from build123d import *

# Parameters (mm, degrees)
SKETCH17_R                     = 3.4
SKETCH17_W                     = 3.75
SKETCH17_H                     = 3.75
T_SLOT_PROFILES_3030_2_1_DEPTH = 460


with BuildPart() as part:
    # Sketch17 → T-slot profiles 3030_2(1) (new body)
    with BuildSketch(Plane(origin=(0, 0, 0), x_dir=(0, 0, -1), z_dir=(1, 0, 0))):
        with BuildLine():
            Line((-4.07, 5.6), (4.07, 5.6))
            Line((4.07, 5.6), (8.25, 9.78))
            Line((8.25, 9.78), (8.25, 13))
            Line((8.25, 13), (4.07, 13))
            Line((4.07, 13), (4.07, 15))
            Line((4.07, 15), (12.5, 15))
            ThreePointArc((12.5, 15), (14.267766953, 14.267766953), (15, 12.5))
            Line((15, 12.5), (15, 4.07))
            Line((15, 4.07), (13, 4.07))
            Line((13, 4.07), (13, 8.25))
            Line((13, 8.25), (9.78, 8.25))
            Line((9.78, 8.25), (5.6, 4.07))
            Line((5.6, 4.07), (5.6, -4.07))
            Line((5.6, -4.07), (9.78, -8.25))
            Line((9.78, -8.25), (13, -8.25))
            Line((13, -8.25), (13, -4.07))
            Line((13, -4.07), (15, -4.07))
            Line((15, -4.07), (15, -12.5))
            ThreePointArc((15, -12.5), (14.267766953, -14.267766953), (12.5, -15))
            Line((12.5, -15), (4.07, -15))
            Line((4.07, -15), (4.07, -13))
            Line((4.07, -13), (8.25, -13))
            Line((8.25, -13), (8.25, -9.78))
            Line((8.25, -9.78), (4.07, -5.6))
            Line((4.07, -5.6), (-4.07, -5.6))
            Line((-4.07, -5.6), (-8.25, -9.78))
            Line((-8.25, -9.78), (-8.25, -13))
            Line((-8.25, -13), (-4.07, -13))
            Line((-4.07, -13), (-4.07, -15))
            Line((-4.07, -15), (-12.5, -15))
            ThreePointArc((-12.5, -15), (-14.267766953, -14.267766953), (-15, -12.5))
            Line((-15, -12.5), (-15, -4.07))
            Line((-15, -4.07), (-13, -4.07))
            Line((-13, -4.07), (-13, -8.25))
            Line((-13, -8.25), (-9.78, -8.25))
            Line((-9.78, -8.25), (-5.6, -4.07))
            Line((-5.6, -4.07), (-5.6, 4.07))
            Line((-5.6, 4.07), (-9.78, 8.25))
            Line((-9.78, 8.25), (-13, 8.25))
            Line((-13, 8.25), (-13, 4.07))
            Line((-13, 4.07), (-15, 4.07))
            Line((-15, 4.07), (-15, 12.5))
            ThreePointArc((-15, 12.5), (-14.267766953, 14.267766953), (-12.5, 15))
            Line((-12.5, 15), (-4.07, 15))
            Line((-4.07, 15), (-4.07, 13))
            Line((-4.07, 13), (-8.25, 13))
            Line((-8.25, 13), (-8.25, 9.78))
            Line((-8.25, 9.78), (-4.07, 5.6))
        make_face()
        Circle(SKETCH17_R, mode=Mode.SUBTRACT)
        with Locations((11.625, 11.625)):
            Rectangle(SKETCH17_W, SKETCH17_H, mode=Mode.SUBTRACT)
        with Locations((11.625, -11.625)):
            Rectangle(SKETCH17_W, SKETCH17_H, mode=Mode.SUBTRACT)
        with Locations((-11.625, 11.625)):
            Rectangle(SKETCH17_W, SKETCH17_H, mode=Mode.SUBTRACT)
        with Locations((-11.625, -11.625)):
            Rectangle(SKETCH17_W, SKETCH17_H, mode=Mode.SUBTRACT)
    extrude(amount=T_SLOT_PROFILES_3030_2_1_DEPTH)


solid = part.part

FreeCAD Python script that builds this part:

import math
import FreeCAD as App
import Part
import Sketcher
Q = App.Units.Quantity

doc = App.newDocument("Part")
body = doc.addObject("PartDesign::Body", "Body")

sketch1 = body.newObject("Sketcher::SketchObject", "Sketch")
sketch1.AttachmentSupport = (doc.getObject("YZ_Plane"), [""])
sketch1.MapMode = "FlatFace"
sketch1.addGeometry([
    Part.LineSegment(App.Vector(5.6, -4.07, 0), App.Vector(5.6, 4.07, 0)),
    Part.LineSegment(App.Vector(5.6, 4.07, 0), App.Vector(9.78, 8.25, 0)),
    Part.LineSegment(App.Vector(9.78, 8.25, 0), App.Vector(13, 8.25, 0)),
    Part.LineSegment(App.Vector(13, 8.25, 0), App.Vector(13, 4.07, 0)),
    Part.LineSegment(App.Vector(13, 4.07, 0), App.Vector(15, 4.07, 0)),
    Part.LineSegment(App.Vector(15, 4.07, 0), App.Vector(15, 12.5, 0)),
    Part.ArcOfCircle(Part.Circle(App.Vector(12.5, 12.5, 0), App.Vector(0, 0, 1), 2.5), math.radians(0), math.radians(90)),
    Part.LineSegment(App.Vector(12.5, 15, 0), App.Vector(4.07, 15, 0)),
    Part.LineSegment(App.Vector(4.07, 15, 0), App.Vector(4.07, 13, 0)),
    Part.LineSegment(App.Vector(4.07, 13, 0), App.Vector(8.25, 13, 0)),
    Part.LineSegment(App.Vector(8.25, 13, 0), App.Vector(8.25, 9.78, 0)),
    Part.LineSegment(App.Vector(8.25, 9.78, 0), App.Vector(4.07, 5.6, 0)),
    Part.LineSegment(App.Vector(4.07, 5.6, 0), App.Vector(-4.07, 5.6, 0)),
    Part.LineSegment(App.Vector(-4.07, 5.6, 0), App.Vector(-8.25, 9.78, 0)),
    Part.LineSegment(App.Vector(-8.25, 9.78, 0), App.Vector(-8.25, 13, 0)),
    Part.LineSegment(App.Vector(-8.25, 13, 0), App.Vector(-4.07, 13, 0)),
    Part.LineSegment(App.Vector(-4.07, 13, 0), App.Vector(-4.07, 15, 0)),
    Part.LineSegment(App.Vector(-4.07, 15, 0), App.Vector(-12.5, 15, 0)),
    Part.ArcOfCircle(Part.Circle(App.Vector(-12.5, 12.5, 0), App.Vector(0, 0, 1), 2.5), math.radians(90), math.radians(180)),
    Part.LineSegment(App.Vector(-15, 12.5, 0), App.Vector(-15, 4.07, 0)),
    Part.LineSegment(App.Vector(-15, 4.07, 0), App.Vector(-13, 4.07, 0)),
    Part.LineSegment(App.Vector(-13, 4.07, 0), App.Vector(-13, 8.25, 0)),
    Part.LineSegment(App.Vector(-13, 8.25, 0), App.Vector(-9.78, 8.25, 0)),
    Part.LineSegment(App.Vector(-9.78, 8.25, 0), App.Vector(-5.6, 4.07, 0)),
    Part.LineSegment(App.Vector(-5.6, 4.07, 0), App.Vector(-5.6, -4.07, 0)),
    Part.LineSegment(App.Vector(-5.6, -4.07, 0), App.Vector(-9.78, -8.25, 0)),
    Part.LineSegment(App.Vector(-9.78, -8.25, 0), App.Vector(-13, -8.25, 0)),
    Part.LineSegment(App.Vector(-13, -8.25, 0), App.Vector(-13, -4.07, 0)),
    Part.LineSegment(App.Vector(-13, -4.07, 0), App.Vector(-15, -4.07, 0)),
    Part.LineSegment(App.Vector(-15, -4.07, 0), App.Vector(-15, -12.5, 0)),
    Part.ArcOfCircle(Part.Circle(App.Vector(-12.5, -12.5, 0), App.Vector(0, 0, 1), 2.5), math.radians(180), math.radians(270)),
    Part.LineSegment(App.Vector(-12.5, -15, 0), App.Vector(-4.07, -15, 0)),
    Part.LineSegment(App.Vector(-4.07, -15, 0), App.Vector(-4.07, -13, 0)),
    Part.LineSegment(App.Vector(-4.07, -13, 0), App.Vector(-8.25, -13, 0)),
    Part.LineSegment(App.Vector(-8.25, -13, 0), App.Vector(-8.25, -9.78, 0)),
    Part.LineSegment(App.Vector(-8.25, -9.78, 0), App.Vector(-4.07, -5.6, 0)),
    Part.LineSegment(App.Vector(-4.07, -5.6, 0), App.Vector(4.07, -5.6, 0)),
    Part.LineSegment(App.Vector(4.07, -5.6, 0), App.Vector(8.25, -9.78, 0)),
    Part.LineSegment(App.Vector(8.25, -9.78, 0), App.Vector(8.25, -13, 0)),
    Part.LineSegment(App.Vector(8.25, -13, 0), App.Vector(4.07, -13, 0)),
    Part.LineSegment(App.Vector(4.07, -13, 0), App.Vector(4.07, -15, 0)),
    Part.LineSegment(App.Vector(4.07, -15, 0), App.Vector(12.5, -15, 0)),
    Part.ArcOfCircle(Part.Circle(App.Vector(12.5, -12.5, 0), App.Vector(0, 0, 1), 2.5), math.radians(-90), math.radians(0)),
    Part.LineSegment(App.Vector(15, -12.5, 0), App.Vector(15, -4.07, 0)),
    Part.LineSegment(App.Vector(15, -4.07, 0), App.Vector(13, -4.07, 0)),
    Part.LineSegment(App.Vector(13, -4.07, 0), App.Vector(13, -8.25, 0)),
    Part.LineSegment(App.Vector(13, -8.25, 0), App.Vector(9.78, -8.25, 0)),
    Part.LineSegment(App.Vector(9.78, -8.25, 0), App.Vector(5.6, -4.07, 0)),
    Part.LineSegment(App.Vector(-13.5, -9.75, 0), App.Vector(-9.75, -9.75, 0)),
    Part.LineSegment(App.Vector(-9.75, -9.75, 0), App.Vector(-9.75, -13.5, 0)),
    Part.LineSegment(App.Vector(-9.75, -13.5, 0), App.Vector(-13.5, -13.5, 0)),
    Part.LineSegment(App.Vector(-13.5, -13.5, 0), App.Vector(-13.5, -9.75, 0)),
    Part.LineSegment(App.Vector(-13.5, 13.5, 0), App.Vector(-9.75, 13.5, 0)),
    Part.LineSegment(App.Vector(-9.75, 13.5, 0), App.Vector(-9.75, 9.75, 0)),
    Part.LineSegment(App.Vector(-9.75, 9.75, 0), App.Vector(-13.5, 9.75, 0)),
    Part.LineSegment(App.Vector(-13.5, 9.75, 0), App.Vector(-13.5, 13.5, 0)),
    Part.LineSegment(App.Vector(9.75, -9.75, 0), App.Vector(13.5, -9.75, 0)),
    Part.LineSegment(App.Vector(13.5, -9.75, 0), App.Vector(13.5, -13.5, 0)),
    Part.LineSegment(App.Vector(13.5, -13.5, 0), App.Vector(9.75, -13.5, 0)),
    Part.LineSegment(App.Vector(9.75, -13.5, 0), App.Vector(9.75, -9.75, 0)),
    Part.Circle(App.Vector(0, 0, 0), App.Vector(0, 0, 1), 3.4),
    Part.LineSegment(App.Vector(9.75, 13.5, 0), App.Vector(13.5, 13.5, 0)),
    Part.LineSegment(App.Vector(13.5, 13.5, 0), App.Vector(13.5, 9.75, 0)),
    Part.LineSegment(App.Vector(13.5, 9.75, 0), App.Vector(9.75, 9.75, 0)),
    Part.LineSegment(App.Vector(9.75, 9.75, 0), App.Vector(9.75, 13.5, 0)),
], False)
sketch1.addConstraint([
    Sketcher.Constraint("Coincident", 0, 2, 1, 1),
    Sketcher.Constraint("Coincident", 1, 2, 2, 1),
    Sketcher.Constraint("Coincident", 2, 2, 3, 1),
    Sketcher.Constraint("Coincident", 3, 2, 4, 1),
    Sketcher.Constraint("Coincident", 4, 2, 5, 1),
    Sketcher.Constraint("Tangent", 5, 2, 6, 1),
    Sketcher.Constraint("Tangent", 6, 2, 7, 1),
    Sketcher.Constraint("Coincident", 7, 2, 8, 1),
    Sketcher.Constraint("Coincident", 8, 2, 9, 1),
    Sketcher.Constraint("Coincident", 9, 2, 10, 1),
    Sketcher.Constraint("Coincident", 10, 2, 11, 1),
    Sketcher.Constraint("Coincident", 11, 2, 12, 1),
    Sketcher.Constraint("Coincident", 12, 2, 13, 1),
    Sketcher.Constraint("Coincident", 13, 2, 14, 1),
    Sketcher.Constraint("Coincident", 14, 2, 15, 1),
    Sketcher.Constraint("Coincident", 15, 2, 16, 1),
    Sketcher.Constraint("Coincident", 16, 2, 17, 1),
    Sketcher.Constraint("Tangent", 17, 2, 18, 1),
    Sketcher.Constraint("Tangent", 18, 2, 19, 1),
    Sketcher.Constraint("Coincident", 19, 2, 20, 1),
    Sketcher.Constraint("Coincident", 20, 2, 21, 1),
    Sketcher.Constraint("Coincident", 21, 2, 22, 1),
    Sketcher.Constraint("Coincident", 22, 2, 23, 1),
    Sketcher.Constraint("Coincident", 23, 2, 24, 1),
    Sketcher.Constraint("Coincident", 24, 2, 25, 1),
    Sketcher.Constraint("Coincident", 25, 2, 26, 1),
    Sketcher.Constraint("Coincident", 26, 2, 27, 1),
    Sketcher.Constraint("Coincident", 27, 2, 28, 1),
    Sketcher.Constraint("Coincident", 28, 2, 29, 1),
    Sketcher.Constraint("Tangent", 29, 2, 30, 1),
    Sketcher.Constraint("Tangent", 30, 2, 31, 1),
    Sketcher.Constraint("Coincident", 31, 2, 32, 1),
    Sketcher.Constraint("Coincident", 32, 2, 33, 1),
    Sketcher.Constraint("Coincident", 33, 2, 34, 1),
    Sketcher.Constraint("Coincident", 34, 2, 35, 1),
    Sketcher.Constraint("Coincident", 35, 2, 36, 1),
    Sketcher.Constraint("Coincident", 36, 2, 37, 1),
    Sketcher.Constraint("Coincident", 37, 2, 38, 1),
    Sketcher.Constraint("Coincident", 38, 2, 39, 1),
    Sketcher.Constraint("Coincident", 39, 2, 40, 1),
    Sketcher.Constraint("Coincident", 40, 2, 41, 1),
    Sketcher.Constraint("Tangent", 41, 2, 42, 1),
    Sketcher.Constraint("Tangent", 42, 2, 43, 1),
    Sketcher.Constraint("Coincident", 43, 2, 44, 1),
    Sketcher.Constraint("Coincident", 44, 2, 45, 1),
    Sketcher.Constraint("Coincident", 45, 2, 46, 1),
    Sketcher.Constraint("Coincident", 46, 2, 47, 1),
    Sketcher.Constraint("Coincident", 47, 2, 0, 1),
    Sketcher.Constraint("Coincident", 48, 2, 49, 1),
    Sketcher.Constraint("Coincident", 49, 2, 50, 1),
    Sketcher.Constraint("Coincident", 50, 2, 51, 1),
    Sketcher.Constraint("Coincident", 51, 2, 48, 1),
    Sketcher.Constraint("Coincident", 52, 2, 53, 1),
    Sketcher.Constraint("Coincident", 53, 2, 54, 1),
    Sketcher.Constraint("Coincident", 54, 2, 55, 1),
    Sketcher.Constraint("Coincident", 55, 2, 52, 1),
    Sketcher.Constraint("Coincident", 56, 2, 57, 1),
    Sketcher.Constraint("Coincident", 57, 2, 58, 1),
    Sketcher.Constraint("Coincident", 58, 2, 59, 1),
    Sketcher.Constraint("Coincident", 59, 2, 56, 1),
    Sketcher.Constraint("Coincident", 61, 2, 62, 1),
    Sketcher.Constraint("Coincident", 62, 2, 63, 1),
    Sketcher.Constraint("Coincident", 63, 2, 64, 1),
    Sketcher.Constraint("Coincident", 64, 2, 61, 1),
    Sketcher.Constraint("Vertical", 0),
    Sketcher.Constraint("Horizontal", 2),
    Sketcher.Constraint("Vertical", 3),
    Sketcher.Constraint("Horizontal", 4),
    Sketcher.Constraint("Vertical", 5),
    Sketcher.Constraint("Horizontal", 7),
    Sketcher.Constraint("Vertical", 8),
    Sketcher.Constraint("Horizontal", 9),
    Sketcher.Constraint("Vertical", 10),
    Sketcher.Constraint("Horizontal", 12),
    Sketcher.Constraint("Vertical", 14),
    Sketcher.Constraint("Horizontal", 15),
    Sketcher.Constraint("Vertical", 16),
    Sketcher.Constraint("Horizontal", 17),
    Sketcher.Constraint("Vertical", 19),
    Sketcher.Constraint("Horizontal", 20),
    Sketcher.Constraint("Vertical", 21),
    Sketcher.Constraint("Horizontal", 22),
    Sketcher.Constraint("Vertical", 24),
    Sketcher.Constraint("Horizontal", 26),
    Sketcher.Constraint("Vertical", 27),
    Sketcher.Constraint("Horizontal", 28),
    Sketcher.Constraint("Vertical", 29),
    Sketcher.Constraint("Horizontal", 31),
    Sketcher.Constraint("Vertical", 32),
    Sketcher.Constraint("Horizontal", 33),
    Sketcher.Constraint("Vertical", 34),
    Sketcher.Constraint("Horizontal", 36),
    Sketcher.Constraint("Vertical", 38),
    Sketcher.Constraint("Horizontal", 39),
    Sketcher.Constraint("Vertical", 40),
    Sketcher.Constraint("Horizontal", 41),
    Sketcher.Constraint("Vertical", 43),
    Sketcher.Constraint("Horizontal", 44),
    Sketcher.Constraint("Vertical", 45),
    Sketcher.Constraint("Horizontal", 46),
    Sketcher.Constraint("Horizontal", 48),
    Sketcher.Constraint("Vertical", 49),
    Sketcher.Constraint("Horizontal", 50),
    Sketcher.Constraint("Vertical", 51),
    Sketcher.Constraint("Horizontal", 52),
    Sketcher.Constraint("Vertical", 53),
    Sketcher.Constraint("Horizontal", 54),
    Sketcher.Constraint("Vertical", 55),
    Sketcher.Constraint("Horizontal", 56),
    Sketcher.Constraint("Vertical", 57),
    Sketcher.Constraint("Horizontal", 58),
    Sketcher.Constraint("Vertical", 59),
    Sketcher.Constraint("Horizontal", 61),
    Sketcher.Constraint("Vertical", 62),
    Sketcher.Constraint("Horizontal", 63),
    Sketcher.Constraint("Vertical", 64),
    Sketcher.Constraint("Coincident", 60, 3, -1, 1),
    Sketcher.Constraint("Equal", 6, 18),
    Sketcher.Constraint("Equal", 18, 30),
    Sketcher.Constraint("Equal", 30, 42),
    Sketcher.Constraint("Symmetric", 6, 3, 30, 3, -1, 1),
    Sketcher.Constraint("Symmetric", 18, 3, 42, 3, -1, 1),
    Sketcher.Constraint("Symmetric", 0, 2, 24, 2, -1, 1),
    Sketcher.Constraint("Symmetric", 1, 2, 25, 2, -1, 1),
    Sketcher.Constraint("Symmetric", 3, 2, 27, 2, -1, 1),
    Sketcher.Constraint("Symmetric", 8, 2, 32, 2, -1, 1),
    Sketcher.Constraint("Symmetric", 10, 2, 34, 2, -1, 1),
    Sketcher.Constraint("Symmetric", 11, 2, 35, 2, -1, 1),
    Sketcher.Constraint("Symmetric", 13, 2, 37, 2, -1, 1),
    Sketcher.Constraint("Symmetric", 15, 2, 39, 2, -1, 1),
    Sketcher.Constraint("Symmetric", 20, 2, 44, 2, -1, 1),
    Sketcher.Constraint("Symmetric", 22, 2, 46, 2, -1, 1),
    Sketcher.Constraint("Symmetric", 54, 2, 56, 2, -1, 1),
    Sketcher.Constraint("Symmetric", 52, 2, 58, 2, -1, 1),
    Sketcher.Constraint("Symmetric", 50, 2, 61, 2, -1, 1),
    Sketcher.Constraint("Symmetric", 48, 2, 63, 2, -1, 1),
    Sketcher.Constraint("Symmetric", 6, 3, 18, 3, -2),
    Sketcher.Constraint("Symmetric", 10, 2, 13, 2, -2),
    Sketcher.Constraint("Symmetric", 8, 2, 15, 2, -2),
    Sketcher.Constraint("Symmetric", 3, 2, 20, 2, -2),
    Sketcher.Constraint("Symmetric", 1, 2, 22, 2, -2),
    Sketcher.Constraint("Symmetric", 51, 2, 56, 2, -2),
    Sketcher.Constraint("Symmetric", 49, 2, 58, 2, -2),
    Sketcher.Constraint("Parallel", 1, 11),
    Sketcher.Constraint("Perpendicular", 11, 13),
    Sketcher.Constraint("Parallel", 13, 23),
    Sketcher.Constraint("Perpendicular", 35, 37),
    Sketcher.Constraint("Parallel", 37, 47),
    Sketcher.Constraint("Horizontal", 0, 2, 3, 2),
    Sketcher.Constraint("Horizontal", 20, 2, 23, 2),
    Sketcher.Constraint("Vertical", 8, 2, 11, 2),
    Sketcher.Constraint("Equal", 36, 0),
    Sketcher.Constraint("Equal", 39, 3),
    Sketcher.Constraint("Equal", 41, 5),
    Sketcher.Constraint("Equal", 44, 8),
    Sketcher.Constraint("Equal", 46, 10),
    Sketcher.Constraint("Equal", 63, 49),
    Sketcher.Constraint("Diameter", 60, Q("6.8 mm")),
    Sketcher.Constraint("Radius", 6, Q("2.5 mm")),
    Sketcher.Constraint("DistanceX", 4, 1, 4, 2, Q("2 mm")),
    Sketcher.Constraint("DistanceX", -1, 1, 2, 2, Q("13 mm")),
    Sketcher.Constraint("DistanceX", 2, 1, 2, 2, Q("3.22 mm")),
    Sketcher.Constraint("DistanceX", 7, 2, 7, 1, Q("8.43 mm")),
    Sketcher.Constraint("DistanceX", 9, 1, 9, 2, Q("4.18 mm")),
    Sketcher.Constraint("DistanceX", 48, 1, 48, 2, Q("3.75 mm")),
    Sketcher.Constraint("DistanceY", 49, 2, -1, 1, Q("13.5 mm")),
    Sketcher.Constraint("DistanceX", 50, 2, -1, 1, Q("13.5 mm")),
])
pad1 = body.newObject("PartDesign::Pad", "Pad")
pad1.Profile = sketch1
pad1.Length = 460

doc.recompute()
